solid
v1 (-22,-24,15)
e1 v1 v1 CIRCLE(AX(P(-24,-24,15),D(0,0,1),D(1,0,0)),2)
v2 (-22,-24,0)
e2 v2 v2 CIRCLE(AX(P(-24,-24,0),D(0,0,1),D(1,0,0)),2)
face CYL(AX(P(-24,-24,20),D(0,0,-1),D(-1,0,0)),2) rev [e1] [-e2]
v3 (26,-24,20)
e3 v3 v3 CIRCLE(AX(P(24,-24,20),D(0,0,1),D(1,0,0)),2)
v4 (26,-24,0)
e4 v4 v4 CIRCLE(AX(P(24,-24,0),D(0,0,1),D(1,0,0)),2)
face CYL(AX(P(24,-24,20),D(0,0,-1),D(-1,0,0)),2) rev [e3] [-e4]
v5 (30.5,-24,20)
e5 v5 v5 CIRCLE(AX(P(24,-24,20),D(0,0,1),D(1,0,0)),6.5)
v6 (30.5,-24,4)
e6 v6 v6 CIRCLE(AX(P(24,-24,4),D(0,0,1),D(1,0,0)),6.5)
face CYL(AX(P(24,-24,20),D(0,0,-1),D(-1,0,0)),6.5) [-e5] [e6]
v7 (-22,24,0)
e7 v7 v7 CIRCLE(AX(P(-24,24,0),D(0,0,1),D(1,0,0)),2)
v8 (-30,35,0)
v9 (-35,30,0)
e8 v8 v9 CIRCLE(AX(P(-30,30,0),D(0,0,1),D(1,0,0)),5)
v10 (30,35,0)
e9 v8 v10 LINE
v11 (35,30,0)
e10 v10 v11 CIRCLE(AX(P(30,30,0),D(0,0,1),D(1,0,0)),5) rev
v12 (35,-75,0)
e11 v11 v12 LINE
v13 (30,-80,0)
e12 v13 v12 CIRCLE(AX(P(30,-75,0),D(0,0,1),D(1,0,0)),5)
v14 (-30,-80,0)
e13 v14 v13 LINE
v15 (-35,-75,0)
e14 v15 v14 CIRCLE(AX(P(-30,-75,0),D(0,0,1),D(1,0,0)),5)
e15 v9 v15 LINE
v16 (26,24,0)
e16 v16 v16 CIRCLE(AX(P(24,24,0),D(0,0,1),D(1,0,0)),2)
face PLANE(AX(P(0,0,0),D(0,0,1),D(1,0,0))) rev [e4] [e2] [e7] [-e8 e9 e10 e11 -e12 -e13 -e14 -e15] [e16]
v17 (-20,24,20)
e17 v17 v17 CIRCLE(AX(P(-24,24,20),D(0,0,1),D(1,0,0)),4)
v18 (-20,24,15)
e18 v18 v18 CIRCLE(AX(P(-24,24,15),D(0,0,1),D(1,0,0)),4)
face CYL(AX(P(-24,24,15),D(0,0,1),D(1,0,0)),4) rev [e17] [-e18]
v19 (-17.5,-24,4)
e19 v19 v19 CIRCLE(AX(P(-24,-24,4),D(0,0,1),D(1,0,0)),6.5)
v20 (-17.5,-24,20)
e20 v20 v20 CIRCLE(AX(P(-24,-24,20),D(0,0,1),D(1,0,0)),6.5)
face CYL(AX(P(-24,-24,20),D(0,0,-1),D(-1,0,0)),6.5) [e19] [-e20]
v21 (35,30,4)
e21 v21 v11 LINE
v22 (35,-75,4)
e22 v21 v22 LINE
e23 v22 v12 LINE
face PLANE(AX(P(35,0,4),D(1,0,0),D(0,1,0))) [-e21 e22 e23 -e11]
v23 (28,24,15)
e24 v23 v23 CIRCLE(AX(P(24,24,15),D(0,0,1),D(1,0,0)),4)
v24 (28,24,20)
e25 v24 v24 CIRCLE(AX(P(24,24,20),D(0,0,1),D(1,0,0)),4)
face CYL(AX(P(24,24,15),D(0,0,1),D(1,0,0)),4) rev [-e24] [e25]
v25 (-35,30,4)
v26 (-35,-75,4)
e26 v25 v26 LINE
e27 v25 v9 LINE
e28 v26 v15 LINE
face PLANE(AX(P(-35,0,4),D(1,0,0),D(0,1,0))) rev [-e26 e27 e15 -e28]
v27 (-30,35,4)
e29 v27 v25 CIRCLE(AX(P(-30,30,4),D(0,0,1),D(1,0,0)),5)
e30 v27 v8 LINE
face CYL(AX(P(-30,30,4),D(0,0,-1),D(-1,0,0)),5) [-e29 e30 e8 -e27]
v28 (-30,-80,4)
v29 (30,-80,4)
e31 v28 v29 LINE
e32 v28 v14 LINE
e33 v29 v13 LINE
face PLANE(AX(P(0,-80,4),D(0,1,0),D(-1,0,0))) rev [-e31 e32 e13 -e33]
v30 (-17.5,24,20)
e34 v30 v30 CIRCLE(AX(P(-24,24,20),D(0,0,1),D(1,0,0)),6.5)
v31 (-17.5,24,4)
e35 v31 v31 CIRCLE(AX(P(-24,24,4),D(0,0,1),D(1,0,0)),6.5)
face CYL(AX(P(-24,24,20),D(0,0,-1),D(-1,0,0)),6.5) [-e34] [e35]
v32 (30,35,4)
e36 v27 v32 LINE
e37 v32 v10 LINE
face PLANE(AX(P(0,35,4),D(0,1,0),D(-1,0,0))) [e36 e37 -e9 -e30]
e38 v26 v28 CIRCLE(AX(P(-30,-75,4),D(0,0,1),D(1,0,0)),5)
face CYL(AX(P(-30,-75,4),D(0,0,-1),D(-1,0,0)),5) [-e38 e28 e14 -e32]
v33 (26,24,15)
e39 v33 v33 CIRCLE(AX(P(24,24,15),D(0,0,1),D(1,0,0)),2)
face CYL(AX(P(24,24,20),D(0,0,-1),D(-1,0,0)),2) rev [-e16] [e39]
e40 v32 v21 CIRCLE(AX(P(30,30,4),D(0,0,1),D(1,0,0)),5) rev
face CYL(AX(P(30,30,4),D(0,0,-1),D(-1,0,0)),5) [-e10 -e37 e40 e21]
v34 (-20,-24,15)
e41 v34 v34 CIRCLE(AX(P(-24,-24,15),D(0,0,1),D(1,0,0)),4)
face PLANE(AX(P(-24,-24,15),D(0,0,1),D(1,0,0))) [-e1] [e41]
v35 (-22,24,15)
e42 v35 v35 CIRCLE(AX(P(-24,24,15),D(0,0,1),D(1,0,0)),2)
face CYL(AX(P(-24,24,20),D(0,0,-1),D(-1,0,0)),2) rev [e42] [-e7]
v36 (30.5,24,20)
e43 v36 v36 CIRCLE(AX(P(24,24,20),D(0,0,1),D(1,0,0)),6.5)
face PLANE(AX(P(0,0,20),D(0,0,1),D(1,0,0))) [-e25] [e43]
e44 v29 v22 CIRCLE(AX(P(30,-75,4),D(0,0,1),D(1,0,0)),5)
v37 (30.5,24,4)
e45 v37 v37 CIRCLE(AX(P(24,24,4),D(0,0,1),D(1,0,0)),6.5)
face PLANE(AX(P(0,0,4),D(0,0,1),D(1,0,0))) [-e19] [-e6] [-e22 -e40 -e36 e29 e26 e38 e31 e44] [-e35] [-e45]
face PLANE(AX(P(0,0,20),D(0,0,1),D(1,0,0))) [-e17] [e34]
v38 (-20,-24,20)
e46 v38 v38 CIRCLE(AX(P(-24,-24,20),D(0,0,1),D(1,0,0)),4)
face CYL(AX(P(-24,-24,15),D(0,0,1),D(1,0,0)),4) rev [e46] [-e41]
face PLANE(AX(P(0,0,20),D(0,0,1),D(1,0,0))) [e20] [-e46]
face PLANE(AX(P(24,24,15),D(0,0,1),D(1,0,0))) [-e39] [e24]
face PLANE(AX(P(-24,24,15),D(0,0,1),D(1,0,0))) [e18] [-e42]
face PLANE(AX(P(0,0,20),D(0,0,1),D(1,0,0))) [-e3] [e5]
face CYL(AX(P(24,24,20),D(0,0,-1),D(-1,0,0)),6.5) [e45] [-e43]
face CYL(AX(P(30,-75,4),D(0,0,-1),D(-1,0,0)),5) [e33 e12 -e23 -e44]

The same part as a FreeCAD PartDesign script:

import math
import FreeCAD as App
import Part
import Sketcher
from FreeCAD import Vector

doc = App.newDocument("Part")
body = doc.addObject("PartDesign::Body", "Body")

sketch1 = body.newObject("Sketcher::SketchObject", "Sketch")
sketch1.AttachmentSupport = (doc.getObject("XY_Plane"), [""])
sketch1.MapMode = "FlatFace"
sketch1.addGeometry([
    Part.LineSegment(Vector(30, 35, 0), Vector(-30, 35, 0)),
    Part.ArcOfCircle(Part.Circle(Vector(-30, 30, 0), Vector(0, 0, 1), 5), math.radians(90), math.radians(180)),
    Part.LineSegment(Vector(-35, 30, 0), Vector(-35, -75, 0)),
    Part.ArcOfCircle(Part.Circle(Vector(-30, -75, 0), Vector(0, 0, 1), 5), math.radians(180), math.radians(270)),
    Part.LineSegment(Vector(-30, -80, 0), Vector(30, -80, 0)),
    Part.ArcOfCircle(Part.Circle(Vector(30, -75, 0), Vector(0, 0, 1), 5), math.radians(-90), math.radians(0)),
    Part.LineSegment(Vector(35, -75, 0), Vector(35, 30, 0)),
    Part.ArcOfCircle(Part.Circle(Vector(30, 30, 0), Vector(0, 0, 1), 5), math.radians(0), math.radians(90)),
    Part.Circle(Vector(24, -24, 0), Vector(0, 0, 1), 6),
    Part.Circle(Vector(-24, -24, 0), Vector(0, 0, 1), 6),
    Part.Circle(Vector(24, 24, 0), Vector(0, 0, 1), 6),
    Part.Circle(Vector(-24, 24, 0), Vector(0, 0, 1), 6),
], False)
sketch1.addConstraint([
    Sketcher.Constraint("Tangent", 0, 2, 1, 1),
    Sketcher.Constraint("Tangent", 1, 2, 2, 1),
    Sketcher.Constraint("Tangent", 2, 2, 3, 1),
    Sketcher.Constraint("Tangent", 3, 2, 4, 1),
    Sketcher.Constraint("Tangent", 4, 2, 5, 1),
    Sketcher.Constraint("Tangent", 5, 2, 6, 1),
    Sketcher.Constraint("Tangent", 6, 2, 7, 1),
    Sketcher.Constraint("Tangent", 7, 2, 0, 1),
    Sketcher.Constraint("Horizontal", 0),
    Sketcher.Constraint("Vertical", 2),
    Sketcher.Constraint("Horizontal", 4),
    Sketcher.Constraint("Vertical", 6),
    Sketcher.Constraint("Equal", 1, 3),
    Sketcher.Constraint("Equal", 3, 5),
    Sketcher.Constraint("Equal", 5, 7),
    Sketcher.Constraint("Equal", 8, 9),
    Sketcher.Constraint("Equal", 9, 10),
    Sketcher.Constraint("Equal", 10, 11),
    Sketcher.Constraint("Symmetric", 9, 3, 10, 3, -1, 1),
    Sketcher.Constraint("Symmetric", 8, 3, 11, 3, -1, 1),
    Sketcher.Constraint("Symmetric", 8, 3, 9, 3, -2),
    Sketcher.Constraint("Diameter", 8, 13.0),
    Sketcher.Constraint("Radius", 1, 5.0),
    Sketcher.Constraint("DistanceX", 0, 2, 0, 1, 60.0),
    Sketcher.Constraint("DistanceY", 2, 2, 2, 1, 105.0),
    Sketcher.Constraint("DistanceX", 1, 3, -1, 1, 30.0),
    Sketcher.Constraint("DistanceY", -1, 1, 1, 3, 30.0),
    Sketcher.Constraint("DistanceX", -1, 1, 8, 3, 24.0),
    Sketcher.Constraint("DistanceY", 8, 3, -1, 1, 24.0),
])
pad1 = body.newObject("PartDesign::Pad", "Pad")
pad1.Profile = sketch1
pad1.Length = 4

sketch2 = body.newObject("Sketcher::SketchObject", "Sketch001")
sketch2.AttachmentSupport = (doc.getObject("XY_Plane"), [""])
sketch2.MapMode = "FlatFace"
sketch2.addGeometry([
    Part.Circle(Vector(-24, -24, 0), Vector(0, 0, 1), 6.5),
    Part.Circle(Vector(-24, -24, 0), Vector(0, 0, 1), 2),
    Part.Circle(Vector(24, -24, 0), Vector(0, 0, 1), 6.5),
    Part.Circle(Vector(24, -24, 0), Vector(0, 0, 1), 2),
    Part.Circle(Vector(24, 24, 0), Vector(0, 0, 1), 6.5),
    Part.Circle(Vector(24, 24, 0), Vector(0, 0, 1), 2),
    Part.Circle(Vector(-24, 24, 0), Vector(0, 0, 1), 6.5),
    Part.Circle(Vector(-24, 24, 0), Vector(0, 0, 1), 2),
], False)
sketch2.addConstraint([
    Sketcher.Constraint("Coincident", 1, 3, 0, 3),
    Sketcher.Constraint("Coincident", 3, 3, 2, 3),
    Sketcher.Constraint("Coincident", 5, 3, 4, 3),
    Sketcher.Constraint("Coincident", 7, 3, 6, 3),
    Sketcher.Constraint("Equal", 0, 2),
    Sketcher.Constraint("Equal", 1, 3),
    Sketcher.Constraint("Equal", 2, 4),
    Sketcher.Constraint("Equal", 3, 5),
    Sketcher.Constraint("Equal", 4, 6),
    Sketcher.Constraint("Equal", 5, 7),
    Sketcher.Constraint("Symmetric", 0, 3, 4, 3, -1, 1),
    Sketcher.Constraint("Symmetric", 2, 3, 6, 3, -1, 1),
    Sketcher.Constraint("Symmetric", 0, 3, 2, 3, -2),
    Sketcher.Constraint("Diameter", 0, 13.0),
    Sketcher.Constraint("Diameter", 1, 4.0),
    Sketcher.Constraint("DistanceX", 0, 3, -1, 1, 24.0),
    Sketcher.Constraint("DistanceY", 0, 3, -1, 1, 24.0),
])
pad2 = body.newObject("PartDesign::Pad", "Pad001")
pad2.Profile = sketch2
pad2.Length = 20

sketch3 = body.newObject("Sketcher::SketchObject", "Sketch002")
sketch3.AttachmentSupport = (doc.getObject("XY_Plane"), [""])
sketch3.MapMode = "FlatFace"
sketch3.AttachmentOffset = App.Placement(Vector(0, 0, 20), App.Rotation())
sketch3.addGeometry([
    Part.Circle(Vector(24, 24, 0), Vector(0, 0, 1), 4),
    Part.Circle(Vector(24, 24, 0), Vector(0, 0, 1), 2),
    Part.Circle(Vector(-24, 24, 0), Vector(0, 0, 1), 4),
    Part.Circle(Vector(-24, 24, 0), Vector(0, 0, 1), 2),
    Part.Circle(Vector(-24, -24, 0), Vector(0, 0, 1), 4),
    Part.Circle(Vector(-24, -24, 0), Vector(0, 0, 1), 2),
    Part.Circle(Vector(24, -24, 0), Vector(0, 0, 1), 2),
], False)
sketch3.addConstraint([
    Sketcher.Constraint("Coincident", 1, 3, 0, 3),
    Sketcher.Constraint("Coincident", 3, 3, 2, 3),
    Sketcher.Constraint("Coincident", 5, 3, 4, 3),
    Sketcher.Constraint("Equal", 0, 2),
    Sketcher.Constraint("Equal", 1, 3),
    Sketcher.Constraint("Equal", 2, 4),
    Sketcher.Constraint("Equal", 3, 5),
    Sketcher.Constraint("Equal", 5, 6),
    Sketcher.Constraint("Symmetric", 0, 3, 4, 3, -1, 1),
    Sketcher.Constraint("Symmetric", 2, 3, 6, 3, -1, 1),
    Sketcher.Constraint("Symmetric", 0, 3, 2, 3, -2),
    Sketcher.Constraint("Diameter", 0, 8.0),
    Sketcher.Constraint("Diameter", 1, 4.0),
    Sketcher.Constraint("DistanceX", -1, 1, 0, 3, 24.0),
    Sketcher.Constraint("DistanceY", -1, 1, 0, 3, 24.0),
])
pocket1 = body.newObject("PartDesign::Pocket", "Pocket")
pocket1.Profile = sketch3
pocket1.Length = 5

doc.recompute()
